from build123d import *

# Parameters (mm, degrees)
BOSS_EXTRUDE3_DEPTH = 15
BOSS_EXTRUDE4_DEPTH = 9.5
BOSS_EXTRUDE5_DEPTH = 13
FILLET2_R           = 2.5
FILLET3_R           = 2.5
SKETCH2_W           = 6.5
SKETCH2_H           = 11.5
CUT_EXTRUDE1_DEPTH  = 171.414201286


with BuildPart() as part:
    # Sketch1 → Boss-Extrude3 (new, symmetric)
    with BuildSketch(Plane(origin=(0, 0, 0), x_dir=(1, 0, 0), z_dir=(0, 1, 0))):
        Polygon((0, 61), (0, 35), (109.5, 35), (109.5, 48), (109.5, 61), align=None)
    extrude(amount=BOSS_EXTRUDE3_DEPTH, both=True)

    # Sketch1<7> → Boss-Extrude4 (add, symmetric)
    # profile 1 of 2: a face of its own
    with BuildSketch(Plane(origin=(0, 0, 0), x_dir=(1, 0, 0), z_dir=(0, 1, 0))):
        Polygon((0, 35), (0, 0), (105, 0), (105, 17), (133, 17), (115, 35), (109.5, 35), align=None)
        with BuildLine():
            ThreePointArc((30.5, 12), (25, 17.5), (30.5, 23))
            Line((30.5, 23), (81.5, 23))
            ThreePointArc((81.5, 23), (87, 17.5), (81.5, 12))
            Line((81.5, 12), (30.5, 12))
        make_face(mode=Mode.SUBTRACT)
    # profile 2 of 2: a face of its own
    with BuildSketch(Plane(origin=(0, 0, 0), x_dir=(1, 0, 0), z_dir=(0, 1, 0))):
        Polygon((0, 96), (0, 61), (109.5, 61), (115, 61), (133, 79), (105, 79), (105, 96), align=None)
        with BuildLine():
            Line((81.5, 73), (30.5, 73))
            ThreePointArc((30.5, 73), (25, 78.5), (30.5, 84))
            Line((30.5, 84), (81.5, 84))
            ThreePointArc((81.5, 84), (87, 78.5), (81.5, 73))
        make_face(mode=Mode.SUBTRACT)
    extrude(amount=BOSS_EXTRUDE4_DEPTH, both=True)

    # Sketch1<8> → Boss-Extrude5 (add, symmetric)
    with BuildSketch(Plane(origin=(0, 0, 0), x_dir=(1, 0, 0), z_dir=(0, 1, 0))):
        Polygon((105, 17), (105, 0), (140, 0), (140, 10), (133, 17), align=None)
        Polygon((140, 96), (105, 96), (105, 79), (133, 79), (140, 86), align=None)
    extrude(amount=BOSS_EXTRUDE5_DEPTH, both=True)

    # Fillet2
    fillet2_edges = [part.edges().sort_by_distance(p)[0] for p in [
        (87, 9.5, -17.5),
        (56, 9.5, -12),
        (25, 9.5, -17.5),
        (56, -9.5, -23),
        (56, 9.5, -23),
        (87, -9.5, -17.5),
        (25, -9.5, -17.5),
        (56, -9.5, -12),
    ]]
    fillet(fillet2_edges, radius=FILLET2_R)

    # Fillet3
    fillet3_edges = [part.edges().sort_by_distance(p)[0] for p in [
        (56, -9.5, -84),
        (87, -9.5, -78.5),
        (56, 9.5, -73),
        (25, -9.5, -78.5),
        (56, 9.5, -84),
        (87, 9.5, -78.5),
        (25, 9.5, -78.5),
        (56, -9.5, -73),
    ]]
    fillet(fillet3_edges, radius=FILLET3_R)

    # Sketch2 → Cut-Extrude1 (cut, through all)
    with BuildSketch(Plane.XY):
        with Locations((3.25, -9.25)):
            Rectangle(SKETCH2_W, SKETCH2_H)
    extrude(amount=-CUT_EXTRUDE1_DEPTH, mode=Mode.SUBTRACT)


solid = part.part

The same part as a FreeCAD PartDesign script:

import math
import FreeCAD as App
import Part
import Sketcher
from FreeCAD import Vector
Q = App.Units.Quantity


def edges_at(feature, points):
    """Names of the edges that pass closest to the given points."""
    edges = feature.Shape.Edges
    near = lambda p: min(range(len(edges)), key=lambda i: edges[i].distToShape(Part.Vertex(*p))[0])
    return sorted({f"Edge{near(p) + 1}" for p in points})

doc = App.newDocument("Part")
body = doc.addObject("PartDesign::Body", "Body")

# Sketch on XZ plane
sketch1 = body.newObject("Sketcher::SketchObject", "Sketch")
sketch1.AttachmentSupport = (doc.getObject("XZ_Plane"), [""])
sketch1.MapMode = "FlatFace"
sketch1.addGeometry(Part.LineSegment(Vector(0, -61, 0), Vector(0, -35, 0)), False)
sketch1.addGeometry(Part.LineSegment(Vector(0, -35, 0), Vector(110, -35, 0)), False)
sketch1.addGeometry(Part.LineSegment(Vector(110, -35, 0), Vector(110, -61, 0)), False)
sketch1.addGeometry(Part.LineSegment(Vector(110, -61, 0), Vector(0, -61, 0)), False)
sketch1.addConstraint(Sketcher.Constraint("Coincident", 0, 2, 1, 1))
sketch1.addConstraint(Sketcher.Constraint("Coincident", 1, 2, 2, 1))
sketch1.addConstraint(Sketcher.Constraint("Coincident", 2, 2, 3, 1))
sketch1.addConstraint(Sketcher.Constraint("Coincident", 3, 2, 0, 1))
sketch1.addConstraint(Sketcher.Constraint("Vertical", 0))
sketch1.addConstraint(Sketcher.Constraint("Horizontal", 1))
sketch1.addConstraint(Sketcher.Constraint("Vertical", 2))
sketch1.addConstraint(Sketcher.Constraint("Horizontal", 3))
sketch1.addConstraint(Sketcher.Constraint("PointOnObject", 0, 2, -2))
sketch1.addConstraint(Sketcher.Constraint("DistanceY", 0, 1, 0, 2, Q("26 mm")))
sketch1.addConstraint(Sketcher.Constraint("DistanceX", 1, 1, 1, 2, Q("109.5 mm")))
sketch1.addConstraint(Sketcher.Constraint("DistanceY", 0, 2, -1, 1, Q("35 mm")))
pad1 = body.newObject("PartDesign::Pad", "Pad")
pad1.Profile = sketch1
pad1.Length = 30
pad1.Midplane = True

# Sketch on XZ plane
sketch2 = body.newObject("Sketcher::SketchObject", "Sketch001")
sketch2.AttachmentSupport = (doc.getObject("XZ_Plane"), [""])
sketch2.MapMode = "FlatFace"
sketch2.addGeometry(Part.LineSegment(Vector(0, -35, 0), Vector(0, 0, 0)), False)
sketch2.addGeometry(Part.LineSegment(Vector(0, 0, 0), Vector(105, 0, 0)), False)
sketch2.addGeometry(Part.LineSegment(Vector(105, 0, 0), Vector(105, -17, 0)), False)
sketch2.addGeometry(Part.LineSegment(Vector(105, -17, 0), Vector(133, -17, 0)), False)
sketch2.addGeometry(Part.LineSegment(Vector(133, -17, 0), Vector(115, -35, 0)), False)
sketch2.addGeometry(Part.LineSegment(Vector(115, -35, 0), Vector(0, -35, 0)), False)
sketch2.addGeometry(Part.LineSegment(Vector(82, -12, 0), Vector(30, -12, 0)), False)
sketch2.addGeometry(Part.ArcOfCircle(Part.Circle(Vector(30, -18, 0), Vector(0, 0, 1), 6), math.radians(90), math.radians(270)), False)
sketch2.addGeometry(Part.LineSegment(Vector(30, -23, 0), Vector(82, -23, 0)), False)
sketch2.addGeometry(Part.ArcOfCircle(Part.Circle(Vector(82, -18, 0), Vector(0, 0, 1), 6), math.radians(-90), math.radians(90)), False)
sketch2.addGeometry(Part.LineSegment(Vector(0, -96, 0), Vector(0, -61, 0)), False)
sketch2.addGeometry(Part.LineSegment(Vector(0, -61, 0), Vector(115, -61, 0)), False)
sketch2.addGeometry(Part.LineSegment(Vector(115, -61, 0), Vector(133, -79, 0)), False)
sketch2.addGeometry(Part.LineSegment(Vector(133, -79, 0), Vector(105, -79, 0)), False)
sketch2.addGeometry(Part.LineSegment(Vector(105, -79, 0), Vector(105, -96, 0)), False)
sketch2.addGeometry(Part.LineSegment(Vector(105, -96, 0), Vector(0, -96, 0)), False)
sketch2.addGeometry(Part.ArcOfCircle(Part.Circle(Vector(82, -78, 0), Vector(0, 0, 1), 6), math.radians(-90), math.radians(90)), False)
sketch2.addGeometry(Part.LineSegment(Vector(82, -73, 0), Vector(30, -73, 0)), False)
sketch2.addGeometry(Part.ArcOfCircle(Part.Circle(Vector(30, -78, 0), Vector(0, 0, 1), 6), math.radians(90), math.radians(270)), False)
sketch2.addGeometry(Part.LineSegment(Vector(30, -84, 0), Vector(82, -84, 0)), False)
sketch2.addConstraint(Sketcher.Constraint("Coincident", 0, 2, 1, 1))
sketch2.addConstraint(Sketcher.Constraint("Coincident", 1, 2, 2, 1))
sketch2.addConstraint(Sketcher.Constraint("Coincident", 2, 2, 3, 1))
sketch2.addConstraint(Sketcher.Constraint("Coincident", 3, 2, 4, 1))
sketch2.addConstraint(Sketcher.Constraint("Coincident", 4, 2, 5, 1))
sketch2.addConstraint(Sketcher.Constraint("Coincident", 5, 2, 0, 1))
sketch2.addConstraint(Sketcher.Constraint("Tangent", 6, 2, 7, 1))
sketch2.addConstraint(Sketcher.Constraint("Tangent", 7, 2, 8, 1))
sketch2.addConstraint(Sketcher.Constraint("Tangent", 8, 2, 9, 1))
sketch2.addConstraint(Sketcher.Constraint("Tangent", 9, 2, 6, 1))
sketch2.addConstraint(Sketcher.Constraint("Coincident", 10, 2, 11, 1))
sketch2.addConstraint(Sketcher.Constraint("Coincident", 11, 2, 12, 1))
sketch2.addConstraint(Sketcher.Constraint("Coincident", 12, 2, 13, 1))
sketch2.addConstraint(Sketcher.Constraint("Coincident", 13, 2, 14, 1))
sketch2.addConstraint(Sketcher.Constraint("Coincident", 14, 2, 15, 1))
sketch2.addConstraint(Sketcher.Constraint("Coincident", 15, 2, 10, 1))
sketch2.addConstraint(Sketcher.Constraint("Tangent", 16, 2, 17, 1))
sketch2.addConstraint(Sketcher.Constraint("Tangent", 17, 2, 18, 1))
sketch2.addConstraint(Sketcher.Constraint("Tangent", 18, 2, 19, 1))
sketch2.addConstraint(Sketcher.Constraint("Tangent", 19, 2, 16, 1))
sketch2.addConstraint(Sketcher.Constraint("Vertical", 0))
sketch2.addConstraint(Sketcher.Constraint("Horizontal", 1))
sketch2.addConstraint(Sketcher.Constraint("Vertical", 2))
sketch2.addConstraint(Sketcher.Constraint("Horizontal", 3))
sketch2.addConstraint(Sketcher.Constraint("Horizontal", 5))
sketch2.addConstraint(Sketcher.Constraint("Horizontal", 6))
sketch2.addConstraint(Sketcher.Constraint("Horizontal", 8))
sketch2.addConstraint(Sketcher.Constraint("Vertical", 10))
sketch2.addConstraint(Sketcher.Constraint("Horizontal", 11))
sketch2.addConstraint(Sketcher.Constraint("Horizontal", 13))
sketch2.addConstraint(Sketcher.Constraint("Vertical", 14))
sketch2.addConstraint(Sketcher.Constraint("Horizontal", 15))
sketch2.addConstraint(Sketcher.Constraint("Horizontal", 17))
sketch2.addConstraint(Sketcher.Constraint("Horizontal", 19))
sketch2.addConstraint(Sketcher.Constraint("Coincident", 0, 2, -1, 1))
sketch2.addConstraint(Sketcher.Constraint("Equal", 9, 16))
sketch2.addConstraint(Sketcher.Constraint("PointOnObject", 10, 2, -2))
sketch2.addConstraint(Sketcher.Constraint("Perpendicular", 4, 12))
sketch2.addConstraint(Sketcher.Constraint("Vertical", 9, 3, 16, 3))
sketch2.addConstraint(Sketcher.Constraint("Vertical", 7, 3, 18, 3))
sketch2.addConstraint(Sketcher.Constraint("Vertical", 4, 2, 11, 2))
sketch2.addConstraint(Sketcher.Constraint("Vertical", 3, 2, 12, 2))
sketch2.addConstraint(Sketcher.Constraint("Vertical", 2, 2, 13, 2))
sketch2.addConstraint(Sketcher.Constraint("Equal", 0, 10))
sketch2.addConstraint(Sketcher.Constraint("Equal", 2, 14))
sketch2.addConstraint(Sketcher.Constraint("Radius", 7, Q("5.5 mm")))
sketch2.addConstraint(Sketcher.Constraint("DistanceX", 1, 1, 1, 2, Q("105 mm")))
sketch2.addConstraint(Sketcher.Constraint("DistanceX", 3, 1, 3, 2, Q("28 mm")))
sketch2.addConstraint(Sketcher.Constraint("DistanceX", 5, 2, 5, 1, Q("115 mm")))
sketch2.addConstraint(Sketcher.Constraint("DistanceX", 6, 2, 6, 1, Q("51 mm")))
sketch2.addConstraint(Sketcher.Constraint("DistanceY", 0, 1, 0, 2, Q("35 mm")))
sketch2.addConstraint(Sketcher.Constraint("DistanceY", 6, 2, -1, 1, Q("12 mm")))
sketch2.addConstraint(Sketcher.Constraint("DistanceY", 10, 2, -1, 1, Q("61 mm")))
sketch2.addConstraint(Sketcher.Constraint("DistanceY", 16, 2, -1, 1, Q("73 mm")))
sketch2.addConstraint(Sketcher.Constraint("DistanceX", -1, 1, 7, 3, Q("30.5 mm")))
pad2 = body.newObject("PartDesign::Pad", "Pad001")
pad2.Profile = sketch2
pad2.Length = 19
pad2.Midplane = True

# Sketch on XZ plane
sketch3 = body.newObject("Sketcher::SketchObject", "Sketch002")
sketch3.AttachmentSupport = (doc.getObject("XZ_Plane"), [""])
sketch3.MapMode = "FlatFace"
sketch3.addGeometry(Part.LineSegment(Vector(105, -17, 0), Vector(105, 0, 0)), False)
sketch3.addGeometry(Part.LineSegment(Vector(105, 0, 0), Vector(140, 0, 0)), False)
sketch3.addGeometry(Part.LineSegment(Vector(140, 0, 0), Vector(140, -10, 0)), False)
sketch3.addGeometry(Part.LineSegment(Vector(140, -10, 0), Vector(133, -17, 0)), False)
sketch3.addGeometry(Part.LineSegment(Vector(133, -17, 0), Vector(105, -17, 0)), False)
sketch3.addGeometry(Part.LineSegment(Vector(140, -96, 0), Vector(105, -96, 0)), False)
sketch3.addGeometry(Part.LineSegment(Vector(105, -96, 0), Vector(105, -79, 0)), False)
sketch3.addGeometry(Part.LineSegment(Vector(105, -79, 0), Vector(133, -79, 0)), False)
sketch3.addGeometry(Part.LineSegment(Vector(133, -79, 0), Vector(140, -86, 0)), False)
sketch3.addGeometry(Part.LineSegment(Vector(140, -86, 0), Vector(140, -96, 0)), False)
sketch3.addConstraint(Sketcher.Constraint("Coincident", 0, 2, 1, 1))
sketch3.addConstraint(Sketcher.Constraint("Coincident", 1, 2, 2, 1))
sketch3.addConstraint(Sketcher.Constraint("Coincident", 2, 2, 3, 1))
sketch3.addConstraint(Sketcher.Constraint("Coincident", 3, 2, 4, 1))
sketch3.addConstraint(Sketcher.Constraint("Coincident", 4, 2, 0, 1))
sketch3.addConstraint(Sketcher.Constraint("Coincident", 5, 2, 6, 1))
sketch3.addConstraint(Sketcher.Constraint("Coincident", 6, 2, 7, 1))
sketch3.addConstraint(Sketcher.Constraint("Coincident", 7, 2, 8, 1))
sketch3.addConstraint(Sketcher.Constraint("Coincident", 8, 2, 9, 1))
sketch3.addConstraint(Sketcher.Constraint("Coincident", 9, 2, 5, 1))
sketch3.addConstraint(Sketcher.Constraint("Vertical", 0))
sketch3.addConstraint(Sketcher.Constraint("Horizontal", 1))
sketch3.addConstraint(Sketcher.Constraint("Vertical", 2))
sketch3.addConstraint(Sketcher.Constraint("Horizontal", 4))
sketch3.addConstraint(Sketcher.Constraint("Horizontal", 5))
sketch3.addConstraint(Sketcher.Constraint("Vertical", 6))
sketch3.addConstraint(Sketcher.Constraint("Horizontal", 7))
sketch3.addConstraint(Sketcher.Constraint("Vertical", 9))
sketch3.addConstraint(Sketcher.Constraint("PointOnObject", 0, 2, -1))
sketch3.addConstraint(Sketcher.Constraint("Perpendicular", 3, 8))
sketch3.addConstraint(Sketcher.Constraint("Vertical", 4, 2, 5, 2))
sketch3.addConstraint(Sketcher.Constraint("Vertical", 3, 2, 7, 2))
sketch3.addConstraint(Sketcher.Constraint("Vertical", 2, 2, 8, 2))
sketch3.addConstraint(Sketcher.Constraint("Equal", 0, 6))
sketch3.addConstraint(Sketcher.Constraint("Equal", 2, 9))
sketch3.addConstraint(Sketcher.Constraint("DistanceX", 1, 1, 1, 2, Q("35 mm")))
sketch3.addConstraint(Sketcher.Constraint("DistanceX", 4, 2, 4, 1, Q("28 mm")))
sketch3.addConstraint(Sketcher.Constraint("DistanceY", 0, 1, 0, 2, Q("17 mm")))
sketch3.addConstraint(Sketcher.Constraint("DistanceX", -1, 1, 0, 2, Q("105 mm")))
sketch3.addConstraint(Sketcher.Constraint("DistanceY", 5, 2, -1, 1, Q("96 mm")))
pad3 = body.newObject("PartDesign::Pad", "Pad002")
pad3.Profile = sketch3
pad3.Length = 26
pad3.Midplane = True
doc.recompute()

fillet = body.newObject("PartDesign::Fillet", "Fillet")
fillet.Base = (pad3, edges_at(pad3, [
    (87, 9.5, -17.5),
    (56, 9.5, -12),
    (25, 9.5, -17.5),
    (56, -9.5, -23),
    (56, 9.5, -23),
    (87, -9.5, -17.5),
    (25, -9.5, -17.5),
    (56, -9.5, -12),
]))
fillet.Radius = 2.5
doc.recompute()

fillet2 = body.newObject("PartDesign::Fillet", "Fillet001")
fillet2.Base = (fillet, edges_at(fillet, [
    (56, -9.5, -84),
    (87, -9.5, -78.5),
    (56, 9.5, -73),
    (25, -9.5, -78.5),
    (56, 9.5, -84),
    (87, 9.5, -78.5),
    (25, 9.5, -78.5),
    (56, -9.5, -73),
]))
fillet2.Radius = 2.5

# Sketch on XY plane
sketch4 = body.newObject("Sketcher::SketchObject", "Sketch003")
sketch4.AttachmentSupport = (doc.getObject("XY_Plane"), [""])
sketch4.MapMode = "FlatFace"
sketch4.addGeometry(Part.LineSegment(Vector(0, -4, 0), Vector(0, -15, 0)), False)
sketch4.addGeometry(Part.LineSegment(Vector(0, -15, 0), Vector(6, -15, 0)), False)
sketch4.addGeometry(Part.LineSegment(Vector(6, -15, 0), Vector(6, -4, 0)), False)
sketch4.addGeometry(Part.LineSegment(Vector(6, -4, 0), Vector(0, -4, 0)), False)
sketch4.addConstraint(Sketcher.Constraint("Coincident", 0, 2, 1, 1))
sketch4.addConstraint(Sketcher.Constraint("Coincident", 1, 2, 2, 1))
sketch4.addConstraint(Sketcher.Constraint("Coincident", 2, 2, 3, 1))
sketch4.addConstraint(Sketcher.Constraint("Coincident", 3, 2, 0, 1))
sketch4.addConstraint(Sketcher.Constraint("Vertical", 0))
sketch4.addConstraint(Sketcher.Constraint("Horizontal", 1))
sketch4.addConstraint(Sketcher.Constraint("Vertical", 2))
sketch4.addConstraint(Sketcher.Constraint("Horizontal", 3))
sketch4.addConstraint(Sketcher.Constraint("PointOnObject", 0, 2, -2))
sketch4.addConstraint(Sketcher.Constraint("DistanceX", 1, 1, 1, 2, Q("6.5 mm")))
sketch4.addConstraint(Sketcher.Constraint("DistanceY", 0, 2, 0, 1, Q("11.5 mm")))
sketch4.addConstraint(Sketcher.Constraint("DistanceY", 0, 2, -1, 1, Q("15 mm")))
pocket1 = body.newObject("PartDesign::Pocket", "Pocket")
pocket1.Profile = sketch4
pocket1.Type = "ThroughAll"

doc.recompute()
